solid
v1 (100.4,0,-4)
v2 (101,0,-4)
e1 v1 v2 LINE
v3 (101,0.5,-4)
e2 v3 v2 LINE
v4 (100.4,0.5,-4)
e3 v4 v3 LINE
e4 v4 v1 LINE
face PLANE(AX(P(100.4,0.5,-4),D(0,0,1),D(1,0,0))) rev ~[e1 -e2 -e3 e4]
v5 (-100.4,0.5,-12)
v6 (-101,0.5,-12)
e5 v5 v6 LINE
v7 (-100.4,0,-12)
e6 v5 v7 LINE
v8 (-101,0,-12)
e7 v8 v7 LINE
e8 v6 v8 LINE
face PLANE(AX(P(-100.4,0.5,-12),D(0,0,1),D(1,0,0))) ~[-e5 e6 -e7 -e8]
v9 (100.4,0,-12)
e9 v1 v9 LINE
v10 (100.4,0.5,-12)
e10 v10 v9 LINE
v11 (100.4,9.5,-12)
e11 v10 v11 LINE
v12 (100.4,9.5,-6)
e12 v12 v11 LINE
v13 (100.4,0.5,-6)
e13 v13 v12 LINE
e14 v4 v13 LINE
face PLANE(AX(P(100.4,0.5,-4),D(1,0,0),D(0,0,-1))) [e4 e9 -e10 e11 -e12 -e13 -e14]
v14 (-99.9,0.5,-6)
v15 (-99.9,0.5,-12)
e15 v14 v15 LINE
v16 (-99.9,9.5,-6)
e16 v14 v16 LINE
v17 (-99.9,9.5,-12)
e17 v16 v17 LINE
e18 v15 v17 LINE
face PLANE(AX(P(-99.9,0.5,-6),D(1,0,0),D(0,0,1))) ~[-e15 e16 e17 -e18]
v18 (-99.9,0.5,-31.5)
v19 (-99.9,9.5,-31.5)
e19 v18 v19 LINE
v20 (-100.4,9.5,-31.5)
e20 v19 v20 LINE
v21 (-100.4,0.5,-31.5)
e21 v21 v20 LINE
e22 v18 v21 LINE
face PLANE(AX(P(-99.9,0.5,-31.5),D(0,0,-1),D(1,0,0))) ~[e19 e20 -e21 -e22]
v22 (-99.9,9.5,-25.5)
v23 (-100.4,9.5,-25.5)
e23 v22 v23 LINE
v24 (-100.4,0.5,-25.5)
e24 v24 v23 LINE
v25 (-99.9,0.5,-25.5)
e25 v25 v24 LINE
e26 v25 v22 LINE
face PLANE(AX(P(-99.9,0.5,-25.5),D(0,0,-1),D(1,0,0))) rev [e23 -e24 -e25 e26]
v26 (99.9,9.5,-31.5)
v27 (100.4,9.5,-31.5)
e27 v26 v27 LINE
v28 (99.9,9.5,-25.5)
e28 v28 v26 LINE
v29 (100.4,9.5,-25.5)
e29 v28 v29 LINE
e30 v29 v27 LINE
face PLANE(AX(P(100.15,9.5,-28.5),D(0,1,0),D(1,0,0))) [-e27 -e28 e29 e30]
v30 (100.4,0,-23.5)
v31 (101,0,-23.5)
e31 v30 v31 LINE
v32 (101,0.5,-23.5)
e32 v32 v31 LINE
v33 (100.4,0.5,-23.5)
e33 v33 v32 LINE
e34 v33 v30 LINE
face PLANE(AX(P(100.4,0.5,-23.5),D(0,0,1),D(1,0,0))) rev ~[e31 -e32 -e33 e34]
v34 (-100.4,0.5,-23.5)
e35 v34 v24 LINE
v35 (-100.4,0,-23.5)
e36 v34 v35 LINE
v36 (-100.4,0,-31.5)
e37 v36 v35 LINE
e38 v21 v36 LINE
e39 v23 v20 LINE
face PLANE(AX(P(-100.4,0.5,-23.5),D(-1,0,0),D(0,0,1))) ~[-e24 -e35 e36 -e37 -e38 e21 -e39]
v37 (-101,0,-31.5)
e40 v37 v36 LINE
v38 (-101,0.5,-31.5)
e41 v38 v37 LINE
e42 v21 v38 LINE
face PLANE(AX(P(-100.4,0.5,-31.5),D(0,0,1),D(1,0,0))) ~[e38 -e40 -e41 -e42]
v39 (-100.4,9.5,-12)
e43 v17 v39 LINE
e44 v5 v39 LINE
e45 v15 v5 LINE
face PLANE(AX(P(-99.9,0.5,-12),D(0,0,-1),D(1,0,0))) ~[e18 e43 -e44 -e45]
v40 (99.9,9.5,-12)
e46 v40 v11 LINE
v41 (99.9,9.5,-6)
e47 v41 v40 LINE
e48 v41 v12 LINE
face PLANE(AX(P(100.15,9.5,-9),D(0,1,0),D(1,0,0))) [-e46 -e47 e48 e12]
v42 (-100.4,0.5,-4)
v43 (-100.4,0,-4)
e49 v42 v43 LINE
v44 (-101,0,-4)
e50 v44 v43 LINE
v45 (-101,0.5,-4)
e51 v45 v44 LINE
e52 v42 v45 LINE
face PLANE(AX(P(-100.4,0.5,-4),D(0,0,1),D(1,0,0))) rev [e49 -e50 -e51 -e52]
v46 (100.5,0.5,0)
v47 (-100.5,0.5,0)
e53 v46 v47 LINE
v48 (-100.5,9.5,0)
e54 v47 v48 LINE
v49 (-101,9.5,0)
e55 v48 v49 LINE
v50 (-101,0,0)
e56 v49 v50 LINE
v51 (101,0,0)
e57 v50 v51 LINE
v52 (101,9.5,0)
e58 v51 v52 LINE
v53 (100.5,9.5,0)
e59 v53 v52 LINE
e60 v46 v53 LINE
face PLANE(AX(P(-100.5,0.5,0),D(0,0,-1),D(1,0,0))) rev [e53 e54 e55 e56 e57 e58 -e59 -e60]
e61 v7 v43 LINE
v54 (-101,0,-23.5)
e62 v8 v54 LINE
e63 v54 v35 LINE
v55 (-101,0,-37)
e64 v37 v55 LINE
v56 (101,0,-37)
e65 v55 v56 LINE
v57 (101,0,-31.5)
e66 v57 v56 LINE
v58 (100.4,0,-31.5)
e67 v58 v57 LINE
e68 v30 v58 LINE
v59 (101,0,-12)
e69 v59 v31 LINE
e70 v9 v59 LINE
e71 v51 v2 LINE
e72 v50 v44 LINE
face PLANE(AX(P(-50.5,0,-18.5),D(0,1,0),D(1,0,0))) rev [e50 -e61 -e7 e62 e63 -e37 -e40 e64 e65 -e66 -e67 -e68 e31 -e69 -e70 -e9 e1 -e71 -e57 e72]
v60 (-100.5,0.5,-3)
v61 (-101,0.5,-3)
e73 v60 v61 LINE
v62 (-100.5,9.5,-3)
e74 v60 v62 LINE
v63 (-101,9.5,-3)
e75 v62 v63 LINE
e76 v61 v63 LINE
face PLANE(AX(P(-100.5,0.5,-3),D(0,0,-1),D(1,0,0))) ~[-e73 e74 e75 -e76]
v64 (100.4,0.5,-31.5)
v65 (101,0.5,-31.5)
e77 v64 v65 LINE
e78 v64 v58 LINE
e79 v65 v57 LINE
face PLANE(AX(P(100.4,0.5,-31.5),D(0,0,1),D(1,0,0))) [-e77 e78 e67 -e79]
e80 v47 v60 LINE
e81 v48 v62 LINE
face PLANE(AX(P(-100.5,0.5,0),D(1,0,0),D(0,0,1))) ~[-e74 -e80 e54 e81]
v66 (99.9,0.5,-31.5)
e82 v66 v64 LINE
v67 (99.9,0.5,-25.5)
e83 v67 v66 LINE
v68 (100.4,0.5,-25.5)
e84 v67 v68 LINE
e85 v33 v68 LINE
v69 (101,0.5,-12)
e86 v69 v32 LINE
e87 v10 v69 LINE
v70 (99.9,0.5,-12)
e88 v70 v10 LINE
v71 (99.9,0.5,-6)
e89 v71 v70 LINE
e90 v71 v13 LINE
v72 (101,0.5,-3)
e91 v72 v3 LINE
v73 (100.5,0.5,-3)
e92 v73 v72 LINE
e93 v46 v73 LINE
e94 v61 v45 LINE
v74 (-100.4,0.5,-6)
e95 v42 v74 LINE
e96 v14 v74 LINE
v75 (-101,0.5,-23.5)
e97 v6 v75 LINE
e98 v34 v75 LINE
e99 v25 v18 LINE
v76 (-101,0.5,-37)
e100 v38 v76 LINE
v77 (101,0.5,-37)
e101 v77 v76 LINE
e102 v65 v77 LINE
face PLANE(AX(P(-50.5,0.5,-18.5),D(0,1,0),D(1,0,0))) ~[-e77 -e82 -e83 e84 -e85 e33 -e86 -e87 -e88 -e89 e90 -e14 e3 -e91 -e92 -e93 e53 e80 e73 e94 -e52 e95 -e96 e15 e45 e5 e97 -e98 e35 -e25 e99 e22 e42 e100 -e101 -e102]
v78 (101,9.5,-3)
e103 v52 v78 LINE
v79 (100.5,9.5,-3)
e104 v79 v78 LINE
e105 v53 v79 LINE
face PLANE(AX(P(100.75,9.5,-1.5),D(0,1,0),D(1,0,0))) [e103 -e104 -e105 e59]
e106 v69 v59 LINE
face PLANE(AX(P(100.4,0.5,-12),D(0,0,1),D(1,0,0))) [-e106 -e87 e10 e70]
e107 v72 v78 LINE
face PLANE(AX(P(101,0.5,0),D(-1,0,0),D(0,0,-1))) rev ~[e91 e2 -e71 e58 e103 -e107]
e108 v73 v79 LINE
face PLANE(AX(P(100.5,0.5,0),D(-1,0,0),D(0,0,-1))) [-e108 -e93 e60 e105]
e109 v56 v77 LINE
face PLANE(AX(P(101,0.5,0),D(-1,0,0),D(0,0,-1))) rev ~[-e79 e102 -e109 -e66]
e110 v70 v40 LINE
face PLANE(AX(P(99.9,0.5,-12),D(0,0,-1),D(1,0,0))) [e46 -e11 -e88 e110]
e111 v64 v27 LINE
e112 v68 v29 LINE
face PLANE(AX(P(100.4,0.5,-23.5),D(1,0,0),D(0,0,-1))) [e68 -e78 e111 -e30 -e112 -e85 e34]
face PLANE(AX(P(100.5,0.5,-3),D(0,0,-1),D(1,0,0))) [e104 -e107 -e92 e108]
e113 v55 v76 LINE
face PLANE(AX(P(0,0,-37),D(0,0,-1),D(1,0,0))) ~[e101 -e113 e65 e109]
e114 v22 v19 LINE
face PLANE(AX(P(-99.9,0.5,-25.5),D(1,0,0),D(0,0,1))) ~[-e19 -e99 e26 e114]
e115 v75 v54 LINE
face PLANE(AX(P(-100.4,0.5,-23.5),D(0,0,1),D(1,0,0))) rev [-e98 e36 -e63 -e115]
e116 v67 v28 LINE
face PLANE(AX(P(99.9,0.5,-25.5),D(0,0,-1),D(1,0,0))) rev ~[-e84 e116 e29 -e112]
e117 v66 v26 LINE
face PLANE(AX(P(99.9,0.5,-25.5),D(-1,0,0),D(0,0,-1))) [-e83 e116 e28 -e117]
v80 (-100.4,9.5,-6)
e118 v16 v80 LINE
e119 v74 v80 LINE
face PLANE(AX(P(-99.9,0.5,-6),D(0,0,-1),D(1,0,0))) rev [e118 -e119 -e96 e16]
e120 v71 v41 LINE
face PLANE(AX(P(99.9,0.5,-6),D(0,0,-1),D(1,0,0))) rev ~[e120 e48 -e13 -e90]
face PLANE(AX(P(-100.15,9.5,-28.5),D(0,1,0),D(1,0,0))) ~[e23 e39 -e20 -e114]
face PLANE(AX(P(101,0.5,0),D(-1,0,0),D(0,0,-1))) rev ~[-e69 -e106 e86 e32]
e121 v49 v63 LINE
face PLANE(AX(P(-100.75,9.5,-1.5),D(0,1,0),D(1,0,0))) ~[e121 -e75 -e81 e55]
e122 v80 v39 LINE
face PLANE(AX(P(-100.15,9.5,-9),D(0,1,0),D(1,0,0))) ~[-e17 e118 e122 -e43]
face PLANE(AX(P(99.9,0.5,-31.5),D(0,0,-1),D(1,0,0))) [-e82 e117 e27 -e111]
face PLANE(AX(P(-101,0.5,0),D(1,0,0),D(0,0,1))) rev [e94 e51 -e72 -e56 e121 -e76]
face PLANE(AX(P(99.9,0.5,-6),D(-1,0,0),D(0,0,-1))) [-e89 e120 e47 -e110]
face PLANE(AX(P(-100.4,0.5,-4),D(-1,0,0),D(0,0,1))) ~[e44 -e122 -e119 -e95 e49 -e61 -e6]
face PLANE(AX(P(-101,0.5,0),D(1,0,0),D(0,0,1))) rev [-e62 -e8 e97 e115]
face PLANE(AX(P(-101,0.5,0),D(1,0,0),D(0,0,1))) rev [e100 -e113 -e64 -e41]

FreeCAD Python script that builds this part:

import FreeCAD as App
import Part
import Sketcher
Q = App.Units.Quantity

doc = App.newDocument("Part")
body = doc.addObject("PartDesign::Body", "Body")

sketch1 = body.newObject("Sketcher::SketchObject", "Sketch")
sketch1.AttachmentSupport = (doc.getObject("XZ_Plane"), [""])
sketch1.MapMode = "FlatFace"
sketch1.addGeometry([
    Part.LineSegment(App.Vector(0, -37, 0), App.Vector(0, 0, 0)),
    Part.LineSegment(App.Vector(0, 0, 0), App.Vector(101, 0, 0)),
    Part.LineSegment(App.Vector(101, 0, 0), App.Vector(101, -37, 0)),
    Part.LineSegment(App.Vector(101, -37, 0), App.Vector(0, -37, 0)),
], False)
sketch1.addConstraint([
    Sketcher.Constraint("Coincident", 0, 2, 1, 1),
    Sketcher.Constraint("Coincident", 1, 2, 2, 1),
    Sketcher.Constraint("Coincident", 2, 2, 3, 1),
    Sketcher.Constraint("Coincident", 3, 2, 0, 1),
    Sketcher.Constraint("Vertical", 0),
    Sketcher.Constraint("Horizontal", 1),
    Sketcher.Constraint("Vertical", 2),
    Sketcher.Constraint("Horizontal", 3),
    Sketcher.Constraint("Coincident", 0, 2, -1, 1),
    Sketcher.Constraint("DistanceX", 1, 1, 1, 2, Q("101 mm")),
    Sketcher.Constraint("DistanceY", 0, 1, 0, 2, Q("37 mm")),
])
pad1 = body.newObject("PartDesign::Pad", "Pad")
pad1.Profile = sketch1
pad1.Length = 0.5
pad1.Reversed = True

sketch2 = body.newObject("Sketcher::SketchObject", "Sketch001")
sketch2.AttachmentSupport = (doc.getObject("XZ_Plane"), [""])
sketch2.MapMode = "FlatFace"
sketch2.AttachmentOffset = App.Placement(App.Vector(0, 0, -0.5), App.Rotation())
sketch2.addGeometry([
    Part.LineSegment(App.Vector(100.5, -3, 0), App.Vector(100.5, 0, 0)),
    Part.LineSegment(App.Vector(100.5, 0, 0), App.Vector(101, 0, 0)),
    Part.LineSegment(App.Vector(101, 0, 0), App.Vector(101, -3, 0)),
    Part.LineSegment(App.Vector(101, -3, 0), App.Vector(100.5, -3, 0)),
    Part.LineSegment(App.Vector(99.9, -31.5, 0), App.Vector(99.9, -25.5, 0)),
    Part.LineSegment(App.Vector(99.9, -25.5, 0), App.Vector(100.4, -25.5, 0)),
    Part.LineSegment(App.Vector(100.4, -25.5, 0), App.Vector(100.4, -31.5, 0)),
    Part.LineSegment(App.Vector(100.4, -31.5, 0), App.Vector(99.9, -31.5, 0)),
    Part.LineSegment(App.Vector(99.9, -12, 0), App.Vector(99.9, -6, 0)),
    Part.LineSegment(App.Vector(99.9, -6, 0), App.Vector(100.4, -6, 0)),
    Part.LineSegment(App.Vector(100.4, -6, 0), App.Vector(100.4, -12, 0)),
    Part.LineSegment(App.Vector(100.4, -12, 0), App.Vector(99.9, -12, 0)),
], False)
sketch2.addConstraint([
    Sketcher.Constraint("Coincident", 0, 2, 1, 1),
    Sketcher.Constraint("Coincident", 1, 2, 2, 1),
    Sketcher.Constraint("Coincident", 2, 2, 3, 1),
    Sketcher.Constraint("Coincident", 3, 2, 0, 1),
    Sketcher.Constraint("Coincident", 4, 2, 5, 1),
    Sketcher.Constraint("Coincident", 5, 2, 6, 1),
    Sketcher.Constraint("Coincident", 6, 2, 7, 1),
    Sketcher.Constraint("Coincident", 7, 2, 4, 1),
    Sketcher.Constraint("Coincident", 8, 2, 9, 1),
    Sketcher.Constraint("Coincident", 9, 2, 10, 1),
    Sketcher.Constraint("Coincident", 10, 2, 11, 1),
    Sketcher.Constraint("Coincident", 11, 2, 8, 1),
    Sketcher.Constraint("Vertical", 0),
    Sketcher.Constraint("Horizontal", 1),
    Sketcher.Constraint("Vertical", 2),
    Sketcher.Constraint("Horizontal", 3),
    Sketcher.Constraint("Vertical", 4),
    Sketcher.Constraint("Horizontal", 5),
    Sketcher.Constraint("Vertical", 6),
    Sketcher.Constraint("Horizontal", 7),
    Sketcher.Constraint("Vertical", 8),
    Sketcher.Constraint("Horizontal", 9),
    Sketcher.Constraint("Vertical", 10),
    Sketcher.Constraint("Horizontal", 11),
    Sketcher.Constraint("PointOnObject", 0, 2, -1),
    Sketcher.Constraint("Vertical", 7, 2, 8, 2),
    Sketcher.Constraint("Vertical", 6, 2, 9, 2),
    Sketcher.Constraint("Equal", 3, 5),
    Sketcher.Constraint("Equal", 6, 8),
    Sketcher.Constraint("DistanceY", 0, 1, 0, 2, Q("3 mm")),
    Sketcher.Constraint("DistanceY", 4, 1, 4, 2, Q("6 mm")),
    Sketcher.Constraint("DistanceX", 1, 1, 1, 2, Q("0.5 mm")),
    Sketcher.Constraint("DistanceX", -1, 1, 1, 2, Q("101 mm")),
    Sketcher.Constraint("DistanceY", 8, 2, -1, 1, Q("6 mm")),
    Sketcher.Constraint("DistanceX", -1, 1, 4, 2, Q("99.9 mm")),
    Sketcher.Constraint("DistanceY", 4, 2, -1, 1, Q("25.5 mm")),
])
pad2 = body.newObject("PartDesign::Pad", "Pad001")
pad2.Profile = sketch2
pad2.Length = 9
pad2.Reversed = True

sketch3 = body.newObject("Sketcher::SketchObject", "Sketch002")
sketch3.AttachmentSupport = (doc.getObject("XZ_Plane"), [""])
sketch3.MapMode = "FlatFace"
sketch3.AttachmentOffset = App.Placement(App.Vector(0, 0, -0.5), App.Rotation())
sketch3.addGeometry([
    Part.LineSegment(App.Vector(100.4, -31.5, 0), App.Vector(100.4, -23.5, 0)),
    Part.LineSegment(App.Vector(100.4, -23.5, 0), App.Vector(101, -23.5, 0)),
    Part.LineSegment(App.Vector(101, -23.5, 0), App.Vector(101, -31.5, 0)),
    Part.LineSegment(App.Vector(101, -31.5, 0), App.Vector(100.4, -31.5, 0)),
    Part.LineSegment(App.Vector(100.4, -12, 0), App.Vector(100.4, -4, 0)),
    Part.LineSegment(App.Vector(100.4, -4, 0), App.Vector(101, -4, 0)),
    Part.LineSegment(App.Vector(101, -4, 0), App.Vector(101, -12, 0)),
    Part.LineSegment(App.Vector(101, -12, 0), App.Vector(100.4, -12, 0)),
], False)
sketch3.addConstraint([
    Sketcher.Constraint("Coincident", 0, 2, 1, 1),
    Sketcher.Constraint("Coincident", 1, 2, 2, 1),
    Sketcher.Constraint("Coincident", 2, 2, 3, 1),
    Sketcher.Constraint("Coincident", 3, 2, 0, 1),
    Sketcher.Constraint("Coincident", 4, 2, 5, 1),
    Sketcher.Constraint("Coincident", 5, 2, 6, 1),
    Sketcher.Constraint("Coincident", 6, 2, 7, 1),
    Sketcher.Constraint("Coincident", 7, 2, 4, 1),
    Sketcher.Constraint("Vertical", 0),
    Sketcher.Constraint("Horizontal", 1),
    Sketcher.Constraint("Vertical", 2),
    Sketcher.Constraint("Horizontal", 3),
    Sketcher.Constraint("Vertical", 4),
    Sketcher.Constraint("Horizontal", 5),
    Sketcher.Constraint("Vertical", 6),
    Sketcher.Constraint("Horizontal", 7),
    Sketcher.Constraint("Vertical", 3, 2, 4, 2),
    Sketcher.Constraint("Vertical", 2, 2, 5, 2),
    Sketcher.Constraint("Equal", 2, 4),
    Sketcher.Constraint("DistanceY", 0, 1, 0, 2, Q("8 mm")),
    Sketcher.Constraint("DistanceX", 1, 1, 1, 2, Q("0.6 mm")),
    Sketcher.Constraint("DistanceX", -1, 1, 1, 2, Q("101 mm")),
    Sketcher.Constraint("DistanceY", 4, 2, -1, 1, Q("4 mm")),
    Sketcher.Constraint("DistanceY", 0, 2, -1, 1, Q("23.5 mm")),
])
pocket1 = body.newObject("PartDesign::Pocket", "Pocket")
pocket1.Profile = sketch3
pocket1.Type = "ThroughAll"
pocket1.Reversed = True
doc.recompute()

mirrored = body.newObject("PartDesign::Mirrored", "Mirrored")
mirrored.Originals = [pad1, pad2, pocket1]
mirrored.MirrorPlane = (doc.getObject("YZ_Plane"), [""])
body.Tip = mirrored

doc.recompute()
